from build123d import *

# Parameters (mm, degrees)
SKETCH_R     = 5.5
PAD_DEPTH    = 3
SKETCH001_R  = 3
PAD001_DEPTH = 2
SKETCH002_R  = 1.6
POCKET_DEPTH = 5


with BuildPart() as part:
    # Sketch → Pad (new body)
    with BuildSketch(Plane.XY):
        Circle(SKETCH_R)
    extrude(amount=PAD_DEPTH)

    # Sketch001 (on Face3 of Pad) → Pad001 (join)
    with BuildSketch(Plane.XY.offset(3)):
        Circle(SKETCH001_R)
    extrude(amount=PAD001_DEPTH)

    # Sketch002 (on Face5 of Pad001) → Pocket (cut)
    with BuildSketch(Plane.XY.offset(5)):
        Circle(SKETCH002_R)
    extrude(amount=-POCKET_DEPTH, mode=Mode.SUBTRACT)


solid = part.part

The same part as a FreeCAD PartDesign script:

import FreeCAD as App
import Part
import Sketcher

doc = App.newDocument("Part")
body = doc.addObject("PartDesign::Body", "Body")

# Sketch on XY plane
sketch1 = doc.addObject("Sketcher::SketchObject", "Sketch")
body.addObject(sketch1)
sketch1.AttachmentSupport = (doc.XY_Plane, [""])
sketch1.MapMode = "FlatFace"
sketch1.addGeometry(Part.Circle(App.Vector(0, 0, 0), App.Vector(0, 0, 1), 6), False)
sketch1.addConstraint([
    Sketcher.Constraint("Coincident", 0, 3, -1, 1),
    Sketcher.Constraint("Diameter", 0, 11.0),
])
pad1 = doc.addObject("PartDesign::Pad", "Pad")
body.addObject(pad1)
pad1.Profile = sketch1
pad1.Length = 3

# Sketch on XY plane
sketch2 = doc.addObject("Sketcher::SketchObject", "Sketch001")
body.addObject(sketch2)
sketch2.AttachmentSupport = (doc.XY_Plane, [""])
sketch2.MapMode = "FlatFace"
sketch2.AttachmentOffset = App.Placement(App.Vector(0, 0, 3), App.Rotation())
sketch2.addGeometry(Part.Circle(App.Vector(0, 0, 0), App.Vector(0, 0, 1), 3), False)
sketch2.addConstraint([
    Sketcher.Constraint("Coincident", 0, 3, -1, 1),
    Sketcher.Constraint("Diameter", 0, 6.0),
])
pad2 = doc.addObject("PartDesign::Pad", "Pad001")
body.addObject(pad2)
pad2.Profile = sketch2
pad2.Length = 2

# Sketch on XY plane
sketch3 = doc.addObject("Sketcher::SketchObject", "Sketch002")
body.addObject(sketch3)
sketch3.AttachmentSupport = (doc.XY_Plane, [""])
sketch3.MapMode = "FlatFace"
sketch3.AttachmentOffset = App.Placement(App.Vector(0, 0, 5), App.Rotation())
sketch3.addGeometry(Part.Circle(App.Vector(0, 0, 0), App.Vector(0, 0, 1), 1.6), False)
sketch3.addConstraint([
    Sketcher.Constraint("Coincident", 0, 3, -1, 1),
    Sketcher.Constraint("Diameter", 0, 3.2),
])
pocket1 = doc.addObject("PartDesign::Pocket", "Pocket")
body.addObject(pocket1)
pocket1.Profile = sketch3
pocket1.Length = 5

doc.recompute()
